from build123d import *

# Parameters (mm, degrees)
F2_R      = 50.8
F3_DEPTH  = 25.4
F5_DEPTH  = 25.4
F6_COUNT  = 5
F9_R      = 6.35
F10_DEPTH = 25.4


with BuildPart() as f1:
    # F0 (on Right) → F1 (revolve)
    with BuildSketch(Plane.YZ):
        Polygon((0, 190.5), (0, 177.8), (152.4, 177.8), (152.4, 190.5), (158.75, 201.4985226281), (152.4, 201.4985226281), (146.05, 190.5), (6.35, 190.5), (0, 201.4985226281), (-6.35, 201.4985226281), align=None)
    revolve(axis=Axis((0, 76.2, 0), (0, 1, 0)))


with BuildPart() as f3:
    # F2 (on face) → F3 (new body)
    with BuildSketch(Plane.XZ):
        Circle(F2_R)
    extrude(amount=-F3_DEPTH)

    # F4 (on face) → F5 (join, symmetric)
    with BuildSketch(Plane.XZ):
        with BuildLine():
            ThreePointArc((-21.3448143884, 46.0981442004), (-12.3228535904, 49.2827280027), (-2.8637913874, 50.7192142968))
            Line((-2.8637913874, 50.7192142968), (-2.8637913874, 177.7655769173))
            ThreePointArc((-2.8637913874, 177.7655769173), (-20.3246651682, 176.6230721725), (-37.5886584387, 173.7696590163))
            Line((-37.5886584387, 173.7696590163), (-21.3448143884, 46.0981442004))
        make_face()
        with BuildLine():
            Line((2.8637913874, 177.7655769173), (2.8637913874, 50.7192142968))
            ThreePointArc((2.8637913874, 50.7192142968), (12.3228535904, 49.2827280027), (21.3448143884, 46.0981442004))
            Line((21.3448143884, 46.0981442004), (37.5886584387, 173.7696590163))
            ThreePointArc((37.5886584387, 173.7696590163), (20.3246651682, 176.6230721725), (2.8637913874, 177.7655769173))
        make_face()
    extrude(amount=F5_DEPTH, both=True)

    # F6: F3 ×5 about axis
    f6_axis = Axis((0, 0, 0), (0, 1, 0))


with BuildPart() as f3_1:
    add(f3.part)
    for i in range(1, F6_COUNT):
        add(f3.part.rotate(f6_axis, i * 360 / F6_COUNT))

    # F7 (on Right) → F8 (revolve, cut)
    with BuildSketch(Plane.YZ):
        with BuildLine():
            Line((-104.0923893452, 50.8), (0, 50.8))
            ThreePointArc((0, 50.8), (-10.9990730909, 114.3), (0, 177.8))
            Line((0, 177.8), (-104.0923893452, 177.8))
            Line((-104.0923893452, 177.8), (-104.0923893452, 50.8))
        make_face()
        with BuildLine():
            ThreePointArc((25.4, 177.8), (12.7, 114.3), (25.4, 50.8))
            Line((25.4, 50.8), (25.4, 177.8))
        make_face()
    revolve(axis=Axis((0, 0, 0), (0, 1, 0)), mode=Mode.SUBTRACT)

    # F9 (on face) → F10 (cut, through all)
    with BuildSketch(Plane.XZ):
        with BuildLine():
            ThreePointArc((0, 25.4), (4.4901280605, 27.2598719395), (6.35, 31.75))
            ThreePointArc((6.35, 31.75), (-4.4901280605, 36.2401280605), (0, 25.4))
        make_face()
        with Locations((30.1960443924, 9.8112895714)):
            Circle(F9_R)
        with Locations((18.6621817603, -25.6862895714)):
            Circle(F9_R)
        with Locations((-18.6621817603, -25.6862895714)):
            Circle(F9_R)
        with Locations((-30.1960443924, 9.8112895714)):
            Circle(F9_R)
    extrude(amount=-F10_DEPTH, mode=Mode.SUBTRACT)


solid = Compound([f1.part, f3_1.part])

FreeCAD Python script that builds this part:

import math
import FreeCAD as App
import Part
import Sketcher

V = App.Vector
Q = App.Units.Quantity


def add_polygon(sketch, points):
    """Adds a closed chain of lines whose ends are joined by coincident constraints."""
    first, n = sketch.GeometryCount, len(points)
    for a, b in zip(points, points[1:] + points[:1]):
        sketch.addGeometry(Part.LineSegment(App.Vector(*a, 0), App.Vector(*b, 0)), False)
    for i in range(n):
        sketch.addConstraint(Sketcher.Constraint("Coincident", first + i, 2, first + (i + 1) % n, 1))

doc = App.newDocument("Part")
body = doc.addObject("PartDesign::Body", "Body")

sketch1 = doc.addObject("Sketcher::SketchObject", "Sketch")
body.addObject(sketch1)
sketch1.AttachmentSupport = (doc.YZ_Plane, [""])
sketch1.MapMode = "FlatFace"
add_polygon(sketch1, [(0, 190), (0, 178), (152, 178), (152, 190), (159, 201), (152, 201), (146, 190), (6, 190), (0, 201), (-6, 201)])
sketch1.addConstraint([
    Sketcher.Constraint("Vertical", 0),
    Sketcher.Constraint("Horizontal", 1),
    Sketcher.Constraint("Vertical", 2),
    Sketcher.Constraint("Horizontal", 4),
    Sketcher.Constraint("Horizontal", 6),
    Sketcher.Constraint("Horizontal", 8),
    Sketcher.Constraint("PointOnObject", 0, 2, -2),
    Sketcher.Constraint("PointOnObject", 7, 2, -2),
    Sketcher.Constraint("Parallel", 3, 5),
    Sketcher.Constraint("Parallel", 7, 9),
    Sketcher.Constraint("Horizontal", 2, 2, 5, 2),
    Sketcher.Constraint("Horizontal", 4, 2, 7, 2),
    Sketcher.Constraint("Horizontal", 6, 2, 9, 2),
    Sketcher.Constraint("Vertical", 2, 2, 4, 2),
    Sketcher.Constraint("Equal", 4, 8),
    Sketcher.Constraint("DistanceX", 1, 1, 1, 2, Q("6 in")),
    Sketcher.Constraint("DistanceX", 6, 2, 6, 1, Q("5.5 in")),
    Sketcher.Constraint("DistanceY", 0, 2, 0, 1, Q("0.5 in")),
    Sketcher.Constraint("DistanceY", -1, 1, 0, 2, Q("7 in")),
    Sketcher.Constraint("Angle", 3, Q("60 deg")),
])
revolution = doc.addObject("PartDesign::Revolution", "Revolution")
body.addObject(revolution)
revolution.Profile = sketch1
revolution.ReferenceAxis = (sketch1, ["H_Axis"])
revolution.Angle = 360
body2 = doc.addObject("PartDesign::Body", "Body001")

sketch2 = doc.addObject("Sketcher::SketchObject", "Sketch001")
body2.addObject(sketch2)
sketch2.AttachmentSupport = (doc.getObject("XZ_Plane001"), [""])
sketch2.MapMode = "FlatFace"
sketch2.addGeometry(Part.Circle(V(0, 0, 0), V(0, 0, 1), 51), False)
sketch2.addConstraint([
    Sketcher.Constraint("Coincident", 0, 3, -1, 1),
    Sketcher.Constraint("Diameter", 0, Q("4 in")),
])
pad1 = doc.addObject("PartDesign::Pad", "Pad")
body2.addObject(pad1)
pad1.Profile = sketch2
pad1.Length = Q("1 in")
pad1.Reversed = True

sketch3 = doc.addObject("Sketcher::SketchObject", "Sketch002")
body2.addObject(sketch3)
sketch3.AttachmentSupport = (doc.getObject("XZ_Plane001"), [""])
sketch3.MapMode = "FlatFace"
sketch3.addGeometry([
    Part.ArcOfCircle(Part.Circle(V(0, 0, 0), V(0, 0, 1), 51), math.radians(93), math.radians(115)),
    Part.LineSegment(V(-3, 51, 0), V(-3, 178, 0)),
    Part.ArcOfCircle(Part.Circle(V(0, 0, 0), V(0, 0, 1), 178), math.radians(90.92), math.radians(102.21)),
    Part.LineSegment(V(-38, 174, 0), V(-21, 46, 0)),
    Part.LineSegment(V(3, 178, 0), V(3, 51, 0)),
    Part.ArcOfCircle(Part.Circle(V(0, 0, 0), V(0, 0, 1), 51), math.radians(65), math.radians(87)),
    Part.LineSegment(V(21, 46, 0), V(38, 174, 0)),
    Part.ArcOfCircle(Part.Circle(V(0, 0, 0), V(0, 0, 1), 178), math.radians(77.79), math.radians(89.08)),
], False)
sketch3.addConstraint([
    Sketcher.Constraint("Coincident", 0, 1, 1, 1),
    Sketcher.Constraint("Coincident", 1, 2, 2, 1),
    Sketcher.Constraint("Coincident", 2, 2, 3, 1),
    Sketcher.Constraint("Coincident", 3, 2, 0, 2),
    Sketcher.Constraint("Coincident", 4, 2, 5, 2),
    Sketcher.Constraint("Coincident", 5, 1, 6, 1),
    Sketcher.Constraint("Coincident", 6, 2, 7, 1),
    Sketcher.Constraint("Coincident", 7, 2, 4, 1),
    Sketcher.Constraint("Vertical", 1),
    Sketcher.Constraint("Vertical", 4),
    Sketcher.Constraint("Coincident", 0, 3, -1, 1),
    Sketcher.Constraint("Coincident", 2, 3, -1, 1),
    Sketcher.Constraint("Coincident", 5, 3, -1, 1),
    Sketcher.Constraint("Coincident", 7, 3, -1, 1),
    Sketcher.Constraint("Equal", 0, 5),
    Sketcher.Constraint("Equal", 2, 7),
    Sketcher.Constraint("Horizontal", 0, 1, 4, 2),
    Sketcher.Constraint("Horizontal", 3, 2, 5, 1),
    Sketcher.Constraint("Horizontal", 2, 2, 6, 2),
    Sketcher.Constraint("Radius", 0, Q("2 in")),
    Sketcher.Constraint("Radius", 2, 177.788643),
    Sketcher.Constraint("Distance", 3, 128.700731),
    Sketcher.Constraint("DistanceY", 1, 1, 1, 2, 127.046363),
    Sketcher.Constraint("DistanceX", 2, 2, -1, 1, 37.588658),
])
pad2 = doc.addObject("PartDesign::Pad", "Pad001")
body2.addObject(pad2)
pad2.Profile = sketch3
pad2.Length = Q("2 in")
pad2.Midplane = True
body3 = doc.addObject("PartDesign::Body", "Body002")
doc.recompute()

body3.BaseFeature = body2
doc.recompute()

body4 = doc.addObject("PartDesign::Body", "Body003")
body4.BaseFeature = body2
body4.Placement = App.Placement(V(0, 0, 0), App.Rotation(V(0, 1, 0), 72))
boolean = doc.addObject("PartDesign::Boolean", "Boolean")
body3.addObject(boolean)
boolean.Type = "Fuse"
boolean.addObjects([body4])
doc.recompute()

body5 = doc.addObject("PartDesign::Body", "Body004")
body5.BaseFeature = body2
body5.Placement = App.Placement(V(0, 0, 0), App.Rotation(V(0, 1, 0), 144))
boolean2 = doc.addObject("PartDesign::Boolean", "Boolean001")
body3.addObject(boolean2)
boolean2.Type = "Fuse"
boolean2.addObjects([body5])
doc.recompute()

body6 = doc.addObject("PartDesign::Body", "Body005")
body6.BaseFeature = body2
body6.Placement = App.Placement(V(0, 0, 0), App.Rotation(V(0, 1, 0), 216))
boolean3 = doc.addObject("PartDesign::Boolean", "Boolean002")
body3.addObject(boolean3)
boolean3.Type = "Fuse"
boolean3.addObjects([body6])
doc.recompute()

body2.Placement = App.Placement(V(0, 0, 0), App.Rotation(V(0, 1, 0), 288))
boolean4 = doc.addObject("PartDesign::Boolean", "Boolean003")
body3.addObject(boolean4)
boolean4.Type = "Fuse"
boolean4.addObjects([body2])

sketch4 = doc.addObject("Sketcher::SketchObject", "Sketch003")
body3.addObject(sketch4)
sketch4.AttachmentSupport = (doc.getObject("YZ_Plane002"), [""])
sketch4.MapMode = "FlatFace"
sketch4.addGeometry([
    Part.LineSegment(V(-104, 51, 0), V(0, 51, 0)),
    Part.ArcOfCircle(Part.Circle(V(178, 114, 0), V(0, 0, 1), 189), math.radians(160), math.radians(200)),
    Part.LineSegment(V(0, 178, 0), V(-104, 178, 0)),
    Part.LineSegment(V(-104, 178, 0), V(-104, 51, 0)),
    Part.ArcOfCircle(Part.Circle(V(178, 114, 0), V(0, 0, 1), 165), math.radians(157), math.radians(203)),
    Part.LineSegment(V(25, 51, 0), V(25, 178, 0)),
], False)
sketch4.addConstraint([
    Sketcher.Constraint("Coincident", 0, 2, 1, 2),
    Sketcher.Constraint("Coincident", 1, 1, 2, 1),
    Sketcher.Constraint("Coincident", 2, 2, 3, 1),
    Sketcher.Constraint("Coincident", 3, 2, 0, 1),
    Sketcher.Constraint("Coincident", 4, 1, 5, 2),
    Sketcher.Constraint("Coincident", 5, 1, 4, 2),
    Sketcher.Constraint("Horizontal", 0),
    Sketcher.Constraint("Horizontal", 2),
    Sketcher.Constraint("Vertical", 3),
    Sketcher.Constraint("Vertical", 5),
    Sketcher.Constraint("Coincident", 4, 3, 1, 3),
    Sketcher.Constraint("PointOnObject", 0, 2, -2),
    Sketcher.Constraint("PointOnObject", 1, 1, -2),
    Sketcher.Constraint("Horizontal", 2, 2, 4, 1),
    Sketcher.Constraint("Radius", 4, Q("6.5 in")),
    Sketcher.Constraint("DistanceY", 3, 2, 3, 1, Q("5 in")),
    Sketcher.Constraint("DistanceX", -1, 1, 1, 3, Q("7 in")),
    Sketcher.Constraint("DistanceY", -1, 1, 0, 2, Q("2 in")),
    Sketcher.Constraint("DistanceX", 0, 1, 0, 2, 104.092389),
])
groove = doc.addObject("PartDesign::Groove", "Groove")
body3.addObject(groove)
groove.Profile = sketch4
groove.ReferenceAxis = (sketch4, ["H_Axis"])
groove.Angle = 360

sketch5 = doc.addObject("Sketcher::SketchObject", "Sketch004")
body3.addObject(sketch5)
sketch5.AttachmentSupport = (doc.getObject("XZ_Plane002"), [""])
sketch5.MapMode = "FlatFace"
sketch5.addGeometry([
    Part.ArcOfCircle(Part.Circle(V(0, 32, 0), V(0, 0, 1), 6), math.radians(-90), math.radians(0)),
    Part.ArcOfCircle(Part.Circle(V(0, 32, 0), V(0, 0, 1), 6), math.radians(0), math.radians(270)),
    Part.Circle(V(30, 10, 0), V(0, 0, 1), 6),
    Part.Circle(V(19, -26, 0), V(0, 0, 1), 6),
    Part.Circle(V(-19, -26, 0), V(0, 0, 1), 6),
    Part.Circle(V(-30, 10, 0), V(0, 0, 1), 6),
], False)
sketch5.addConstraint([
    Sketcher.Constraint("Tangent", 0, 1, 1, 2),
    Sketcher.Constraint("Coincident", 1, 1, 0, 2),
    Sketcher.Constraint("Equal", 1, 2),
    Sketcher.Constraint("Equal", 2, 3),
    Sketcher.Constraint("Equal", 3, 4),
    Sketcher.Constraint("Equal", 4, 5),
    Sketcher.Constraint("Symmetric", 3, 3, 4, 3, -2),
    Sketcher.Constraint("Symmetric", 2, 3, 5, 3, -2),
    Sketcher.Constraint("PointOnObject", 0, 3, -2),
    Sketcher.Constraint("PointOnObject", 0, 1, -2),
    Sketcher.Constraint("Horizontal", 0, 3, 1, 1),
    Sketcher.Constraint("Diameter", 2, Q("0.5 in")),
    Sketcher.Constraint("DistanceY", -1, 1, 0, 1, Q("1 in")),
    Sketcher.Constraint("DistanceY", -1, 1, 2, 3, 9.81129),
    Sketcher.Constraint("DistanceX", -1, 1, 3, 3, 18.662182),
    Sketcher.Constraint("DistanceY", 3, 3, -1, 1, 25.68629),
    Sketcher.Constraint("DistanceX", 5, 3, 2, 3, 60.392089),
])
pocket1 = doc.addObject("PartDesign::Pocket", "Pocket")
body3.addObject(pocket1)
pocket1.Profile = sketch5
pocket1.Type = "ThroughAll"

doc.recompute()
